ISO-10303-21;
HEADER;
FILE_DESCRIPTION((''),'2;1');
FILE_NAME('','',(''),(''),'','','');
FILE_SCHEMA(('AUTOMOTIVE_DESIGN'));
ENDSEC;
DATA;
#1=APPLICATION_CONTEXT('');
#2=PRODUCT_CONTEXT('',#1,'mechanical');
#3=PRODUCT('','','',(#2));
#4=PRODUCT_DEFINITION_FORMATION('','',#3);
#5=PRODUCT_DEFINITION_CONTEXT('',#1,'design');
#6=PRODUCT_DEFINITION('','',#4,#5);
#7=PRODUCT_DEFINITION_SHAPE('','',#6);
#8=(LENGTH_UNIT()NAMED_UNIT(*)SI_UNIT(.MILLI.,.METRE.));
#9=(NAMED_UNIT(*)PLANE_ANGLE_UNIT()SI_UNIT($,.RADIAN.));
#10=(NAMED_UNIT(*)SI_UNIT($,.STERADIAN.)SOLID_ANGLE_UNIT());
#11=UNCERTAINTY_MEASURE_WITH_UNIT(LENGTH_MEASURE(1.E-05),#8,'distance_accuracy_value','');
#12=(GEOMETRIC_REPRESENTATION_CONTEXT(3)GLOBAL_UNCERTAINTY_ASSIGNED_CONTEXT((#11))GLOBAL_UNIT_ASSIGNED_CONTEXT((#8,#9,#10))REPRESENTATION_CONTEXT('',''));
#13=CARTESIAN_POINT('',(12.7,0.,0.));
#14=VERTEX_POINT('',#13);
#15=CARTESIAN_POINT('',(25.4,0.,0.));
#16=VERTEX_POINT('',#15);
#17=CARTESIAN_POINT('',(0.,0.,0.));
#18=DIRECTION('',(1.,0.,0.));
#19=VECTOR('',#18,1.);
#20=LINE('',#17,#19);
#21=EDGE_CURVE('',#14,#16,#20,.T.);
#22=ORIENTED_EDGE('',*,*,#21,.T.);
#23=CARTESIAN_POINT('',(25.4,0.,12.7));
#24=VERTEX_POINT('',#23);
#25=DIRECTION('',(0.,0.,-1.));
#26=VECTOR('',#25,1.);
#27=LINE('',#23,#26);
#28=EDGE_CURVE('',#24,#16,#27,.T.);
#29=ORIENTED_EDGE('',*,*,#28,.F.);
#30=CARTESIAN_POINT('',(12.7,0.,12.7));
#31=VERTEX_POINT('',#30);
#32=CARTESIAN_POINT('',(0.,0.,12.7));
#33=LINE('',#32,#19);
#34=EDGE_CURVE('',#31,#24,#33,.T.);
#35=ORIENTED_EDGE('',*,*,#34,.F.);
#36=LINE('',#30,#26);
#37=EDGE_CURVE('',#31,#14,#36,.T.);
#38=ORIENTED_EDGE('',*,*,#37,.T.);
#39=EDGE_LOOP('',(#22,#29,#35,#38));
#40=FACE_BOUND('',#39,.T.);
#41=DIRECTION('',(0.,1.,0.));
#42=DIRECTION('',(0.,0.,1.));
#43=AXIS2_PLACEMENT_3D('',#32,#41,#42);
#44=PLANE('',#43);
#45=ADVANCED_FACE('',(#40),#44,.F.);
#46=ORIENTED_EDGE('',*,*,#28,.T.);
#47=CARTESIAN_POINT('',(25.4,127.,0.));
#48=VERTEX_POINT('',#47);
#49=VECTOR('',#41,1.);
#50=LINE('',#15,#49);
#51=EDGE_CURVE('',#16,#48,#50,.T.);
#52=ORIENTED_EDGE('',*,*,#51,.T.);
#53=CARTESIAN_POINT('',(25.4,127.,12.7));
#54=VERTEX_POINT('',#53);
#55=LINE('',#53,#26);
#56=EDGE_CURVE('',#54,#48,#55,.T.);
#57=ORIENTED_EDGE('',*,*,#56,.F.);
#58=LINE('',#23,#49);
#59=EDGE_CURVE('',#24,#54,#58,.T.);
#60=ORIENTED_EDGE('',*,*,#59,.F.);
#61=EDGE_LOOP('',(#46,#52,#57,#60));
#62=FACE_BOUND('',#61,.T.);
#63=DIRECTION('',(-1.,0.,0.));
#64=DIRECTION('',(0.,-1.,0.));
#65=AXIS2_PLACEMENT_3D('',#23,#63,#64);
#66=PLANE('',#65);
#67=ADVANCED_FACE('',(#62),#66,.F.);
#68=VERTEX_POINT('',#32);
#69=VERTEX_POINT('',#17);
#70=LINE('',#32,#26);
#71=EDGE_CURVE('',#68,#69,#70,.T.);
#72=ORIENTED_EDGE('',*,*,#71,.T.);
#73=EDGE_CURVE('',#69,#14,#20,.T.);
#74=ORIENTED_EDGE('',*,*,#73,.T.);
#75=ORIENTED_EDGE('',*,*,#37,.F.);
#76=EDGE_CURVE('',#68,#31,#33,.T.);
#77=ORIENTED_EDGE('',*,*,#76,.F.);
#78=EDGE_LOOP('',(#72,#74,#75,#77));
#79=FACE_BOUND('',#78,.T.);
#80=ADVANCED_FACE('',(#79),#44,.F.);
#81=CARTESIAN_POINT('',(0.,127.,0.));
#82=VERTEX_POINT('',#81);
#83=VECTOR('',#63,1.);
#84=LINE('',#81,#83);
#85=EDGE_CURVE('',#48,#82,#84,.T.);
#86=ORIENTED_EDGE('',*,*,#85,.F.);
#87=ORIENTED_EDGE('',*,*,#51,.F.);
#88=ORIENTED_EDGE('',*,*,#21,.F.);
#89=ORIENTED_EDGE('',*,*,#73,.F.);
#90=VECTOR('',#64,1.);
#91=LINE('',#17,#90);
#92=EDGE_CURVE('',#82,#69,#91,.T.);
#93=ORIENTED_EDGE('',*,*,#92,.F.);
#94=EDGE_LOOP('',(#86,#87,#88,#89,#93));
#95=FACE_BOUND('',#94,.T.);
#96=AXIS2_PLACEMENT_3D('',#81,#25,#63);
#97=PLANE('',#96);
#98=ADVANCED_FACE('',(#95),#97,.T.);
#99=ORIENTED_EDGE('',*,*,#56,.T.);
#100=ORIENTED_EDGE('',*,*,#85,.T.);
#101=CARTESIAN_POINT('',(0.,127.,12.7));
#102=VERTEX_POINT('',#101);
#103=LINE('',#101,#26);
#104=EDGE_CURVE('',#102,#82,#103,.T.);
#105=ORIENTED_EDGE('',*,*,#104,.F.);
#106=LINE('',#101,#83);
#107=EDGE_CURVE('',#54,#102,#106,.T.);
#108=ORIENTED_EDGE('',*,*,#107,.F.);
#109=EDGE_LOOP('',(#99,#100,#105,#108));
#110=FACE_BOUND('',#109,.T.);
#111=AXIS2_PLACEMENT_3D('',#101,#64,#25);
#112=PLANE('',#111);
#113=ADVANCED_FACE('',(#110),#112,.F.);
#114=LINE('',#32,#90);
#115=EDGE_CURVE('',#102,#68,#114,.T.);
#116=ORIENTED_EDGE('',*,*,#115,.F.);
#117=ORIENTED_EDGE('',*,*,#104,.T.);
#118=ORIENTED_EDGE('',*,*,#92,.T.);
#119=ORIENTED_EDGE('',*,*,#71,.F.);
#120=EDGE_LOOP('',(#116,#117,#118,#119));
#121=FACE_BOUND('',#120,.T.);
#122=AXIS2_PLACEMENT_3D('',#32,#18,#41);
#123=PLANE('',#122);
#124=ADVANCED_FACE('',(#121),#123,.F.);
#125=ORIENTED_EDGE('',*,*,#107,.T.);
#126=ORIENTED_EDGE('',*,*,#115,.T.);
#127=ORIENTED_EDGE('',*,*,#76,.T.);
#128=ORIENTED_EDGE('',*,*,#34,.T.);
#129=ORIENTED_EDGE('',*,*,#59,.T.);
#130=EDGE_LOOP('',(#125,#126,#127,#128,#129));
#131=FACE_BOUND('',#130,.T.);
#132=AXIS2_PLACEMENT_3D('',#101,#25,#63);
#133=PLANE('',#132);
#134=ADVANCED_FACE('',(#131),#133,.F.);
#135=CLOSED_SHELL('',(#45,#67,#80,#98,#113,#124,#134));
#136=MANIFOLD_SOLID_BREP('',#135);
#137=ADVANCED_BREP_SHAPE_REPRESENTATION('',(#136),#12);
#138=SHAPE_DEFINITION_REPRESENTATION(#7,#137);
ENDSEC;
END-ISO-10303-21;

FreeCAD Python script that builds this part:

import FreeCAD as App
import Part
import Sketcher

V = App.Vector
Q = App.Units.Quantity


def add_polygon(sketch, points):
    """Adds a closed chain of lines whose ends are joined by coincident constraints."""
    first, n = sketch.GeometryCount, len(points)
    for a, b in zip(points, points[1:] + points[:1]):
        sketch.addGeometry(Part.LineSegment(App.Vector(*a, 0), App.Vector(*b, 0)), False)
    for i in range(n):
        sketch.addConstraint(Sketcher.Constraint("Coincident", first + i, 2, first + (i + 1) % n, 1))

doc = App.newDocument("Part")
body = doc.addObject("PartDesign::Body", "Body")

# Sketch on XY plane
sketch1 = body.newObject("Sketcher::SketchObject", "Sketch")
sketch1.AttachmentSupport = (doc.getObject("XY_Plane"), [""])
sketch1.MapMode = "FlatFace"
add_polygon(sketch1, [(0, 127), (0, 0), (25, 0), (25, 127)])  # lines 0-3
sketch1.addConstraint([
    Sketcher.Constraint("Vertical", 0),
    Sketcher.Constraint("Horizontal", 1),
    Sketcher.Constraint("Vertical", 2),
    Sketcher.Constraint("Horizontal", 3),
    Sketcher.Constraint("Coincident", 0, 2, -1, 1),
    Sketcher.Constraint("DistanceX", 1, 1, 1, 2, Q("1 in")),
    Sketcher.Constraint("DistanceY", 0, 2, 0, 1, Q("5 in")),
])
pad1 = body.newObject("PartDesign::Pad", "Pad")
pad1.Profile = sketch1
pad1.Length = Q("0.5 in")

doc.recompute()
